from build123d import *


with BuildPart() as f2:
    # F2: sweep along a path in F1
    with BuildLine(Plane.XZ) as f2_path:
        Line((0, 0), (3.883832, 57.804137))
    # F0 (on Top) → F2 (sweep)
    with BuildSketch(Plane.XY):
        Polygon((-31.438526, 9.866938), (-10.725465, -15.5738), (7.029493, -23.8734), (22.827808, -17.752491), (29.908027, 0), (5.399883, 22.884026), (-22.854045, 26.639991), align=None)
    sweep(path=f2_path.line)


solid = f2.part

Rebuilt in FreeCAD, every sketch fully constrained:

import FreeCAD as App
import Part
import Sketcher
from FreeCAD import Vector
Q = App.Units.Quantity


def add_polygon(sketch, points):
    """Adds a closed chain of lines whose ends are joined by coincident constraints."""
    first, n = sketch.GeometryCount, len(points)
    for a, b in zip(points, points[1:] + points[:1]):
        sketch.addGeometry(Part.LineSegment(App.Vector(*a, 0), App.Vector(*b, 0)), False)
    for i in range(n):
        sketch.addConstraint(Sketcher.Constraint("Coincident", first + i, 2, first + (i + 1) % n, 1))

doc = App.newDocument("Part")
body = doc.addObject("PartDesign::Body", "Body")

# Sketch on XY plane
sketch1 = doc.addObject("Sketcher::SketchObject", "Sketch")
body.addObject(sketch1)
sketch1.AttachmentSupport = (doc.XY_Plane, [""])
sketch1.MapMode = "FlatFace"
add_polygon(sketch1, [(-31.438526, 9.866938), (-10.725465, -15.5738), (7.029493, -23.8734), (22.827808, -17.752491), (29.908027, 0), (5.399883, 22.884026), (-22.854045, 26.639991)])  # lines 0-6
sketch1.addConstraint([
    Sketcher.Constraint("PointOnObject", 3, 2, -1),
    Sketcher.Constraint("DistanceY", 0, 2, -1, 1, Q("15.5738 mm")),
    Sketcher.Constraint("DistanceY", 1, 2, -1, 1, Q("23.8734 mm")),
    Sketcher.Constraint("Distance", 3, Q("19.112311 mm")),
    Sketcher.Constraint("DistanceX", -1, 1, 2, 2, Q("22.827808 mm")),
    Sketcher.Constraint("DistanceY", 2, 2, -1, 1, Q("17.752491 mm")),
    Sketcher.Constraint("DistanceY", -1, 1, 5, 2, Q("26.639991 mm")),
    Sketcher.Constraint("DistanceX", 0, 2, 1, 2, Q("17.754958 mm")),
    Sketcher.Constraint("DistanceX", 4, 2, 1, 2, Q("1.62961 mm")),
    Sketcher.Constraint("DistanceX", 5, 2, 0, 2, Q("12.12858 mm")),
    Sketcher.Constraint("DistanceX", 6, 2, 5, 2, Q("8.584481 mm")),
    Sketcher.Constraint("DistanceY", 2, 2, 6, 2, Q("27.619429 mm")),
    Sketcher.Constraint("Distance", 2, Q("16.942617 mm")),
    Sketcher.Constraint("Distance", 4, Q("33.530997 mm")),
])

# Sketch on an angled plane
sketch2 = doc.addObject("Sketcher::SketchObject", "Sketch001")
body.addObject(sketch2)
sketch2.Placement = App.Placement(Vector(0, 0, 0), App.Rotation(Vector(0.067038367, 0, 0.997750398), Vector(0, 0.999999999, 0), Vector(-0.997750398, 0, 0.067038367), "ZXY"))
sketch2.addGeometry(Part.LineSegment(Vector(0, 0, 0), Vector(57.934466, 0, 0)), False)
sketch2.addConstraint([
    Sketcher.Constraint("Horizontal", 0),
    Sketcher.Constraint("Coincident", 0, 1, -1, 1),
    Sketcher.Constraint("DistanceX", 0, 1, 0, 2, Q("57.934466 mm")),
])
doc.recompute()

additivepipe = doc.addObject("PartDesign::AdditivePipe", "AdditivePipe")
body.addObject(additivepipe)
additivepipe.Profile = sketch1
additivepipe.Spine = (sketch2, ["Edge1"])

doc.recompute()
